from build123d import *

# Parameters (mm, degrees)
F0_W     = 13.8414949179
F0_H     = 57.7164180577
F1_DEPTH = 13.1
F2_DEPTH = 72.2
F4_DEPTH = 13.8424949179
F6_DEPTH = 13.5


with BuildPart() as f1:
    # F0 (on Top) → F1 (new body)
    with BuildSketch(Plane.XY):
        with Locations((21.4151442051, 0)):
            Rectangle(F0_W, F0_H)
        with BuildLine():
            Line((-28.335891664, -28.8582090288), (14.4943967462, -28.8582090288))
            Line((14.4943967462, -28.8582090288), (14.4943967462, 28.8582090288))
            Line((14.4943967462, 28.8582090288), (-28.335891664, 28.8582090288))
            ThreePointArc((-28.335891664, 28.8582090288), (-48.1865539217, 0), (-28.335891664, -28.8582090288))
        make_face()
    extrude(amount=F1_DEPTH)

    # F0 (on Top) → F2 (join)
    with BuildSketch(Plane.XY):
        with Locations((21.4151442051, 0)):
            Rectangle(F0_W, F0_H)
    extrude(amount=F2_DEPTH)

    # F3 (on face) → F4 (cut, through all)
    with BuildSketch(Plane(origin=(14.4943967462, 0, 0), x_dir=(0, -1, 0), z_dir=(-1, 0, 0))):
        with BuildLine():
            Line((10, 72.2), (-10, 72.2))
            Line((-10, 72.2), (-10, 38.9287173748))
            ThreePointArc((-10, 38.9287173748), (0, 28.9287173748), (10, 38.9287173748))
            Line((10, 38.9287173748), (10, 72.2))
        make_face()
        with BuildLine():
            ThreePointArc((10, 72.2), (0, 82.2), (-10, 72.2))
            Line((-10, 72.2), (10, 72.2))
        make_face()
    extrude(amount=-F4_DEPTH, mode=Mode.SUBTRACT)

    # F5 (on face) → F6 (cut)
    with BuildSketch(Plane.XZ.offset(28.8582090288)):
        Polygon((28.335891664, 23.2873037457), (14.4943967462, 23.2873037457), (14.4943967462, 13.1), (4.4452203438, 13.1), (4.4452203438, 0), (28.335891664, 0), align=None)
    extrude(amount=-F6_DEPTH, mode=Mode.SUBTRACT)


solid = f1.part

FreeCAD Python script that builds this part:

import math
import FreeCAD as App
import Part
import Sketcher
from FreeCAD import Vector
Q = App.Units.Quantity

doc = App.newDocument("Part")
params = doc.addObject("Spreadsheet::Sheet", "Params")
for row, (alias, value) in enumerate([
    ("pad1_length", "13.1 mm"),
    ("pad2_length", "72.2 mm"),
    ("sketch3_radius", "10 mm"),
    ("sketch4_height", "13.1 mm"),
    ("pocket2_length", "13.5 mm"),
], start=1):
    params.set(f"A{row}", alias)
    params.set(f"B{row}", "=" + value)
    params.setAlias(f"B{row}", alias)

body = doc.addObject("PartDesign::Body", "Body")

sketch1 = body.newObject("Sketcher::SketchObject", "Sketch")
sketch1.AttachmentSupport = (doc.getObject("XY_Plane"), [""])
sketch1.MapMode = "FlatFace"
sketch1.addGeometry(Part.LineSegment(Vector(28, -29, 0), Vector(28, 29, 0)), False)
sketch1.addGeometry(Part.LineSegment(Vector(28, 29, 0), Vector(-28, 29, 0)), False)
sketch1.addGeometry(Part.ArcOfCircle(Part.Circle(Vector(-17, 0, 0), Vector(0, 0, 1), 31), math.radians(111), math.radians(249)), False)
sketch1.addGeometry(Part.LineSegment(Vector(-28, -29, 0), Vector(28, -29, 0)), False)
sketch1.addConstraint(Sketcher.Constraint("Coincident", 0, 2, 1, 1))
sketch1.addConstraint(Sketcher.Constraint("Coincident", 1, 2, 2, 1))
sketch1.addConstraint(Sketcher.Constraint("Coincident", 2, 2, 3, 1))
sketch1.addConstraint(Sketcher.Constraint("Coincident", 3, 2, 0, 1))
sketch1.addConstraint(Sketcher.Constraint("Vertical", 0))
sketch1.addConstraint(Sketcher.Constraint("Horizontal", 1))
sketch1.addConstraint(Sketcher.Constraint("Horizontal", 3))
sketch1.addConstraint(Sketcher.Constraint("Symmetric", 0, 2, 2, 2, -1, 1))
sketch1.addConstraint(Sketcher.Constraint("PointOnObject", 2, 3, -1))
sketch1.addConstraint(Sketcher.Constraint("Radius", 2, Q("30.901866 mm")))
sketch1.addConstraint(Sketcher.Constraint("DistanceY", 0, 1, 0, 2, Q("57.716418 mm")))
sketch1.addConstraint(Sketcher.Constraint("DistanceX", 1, 2, 1, 1, Q("56.671783 mm")))
pad1 = body.newObject("PartDesign::Pad", "Pad")
pad1.Profile = sketch1
pad1.setExpression("Length", "Params.pad1_length")

sketch2 = body.newObject("Sketcher::SketchObject", "Sketch001")
sketch2.AttachmentSupport = (doc.getObject("XY_Plane"), [""])
sketch2.MapMode = "FlatFace"
sketch2.addGeometry(Part.LineSegment(Vector(14, 29, 0), Vector(14, -29, 0)), False)
sketch2.addGeometry(Part.LineSegment(Vector(14, -29, 0), Vector(28, -29, 0)), False)
sketch2.addGeometry(Part.LineSegment(Vector(28, -29, 0), Vector(28, 29, 0)), False)
sketch2.addGeometry(Part.LineSegment(Vector(28, 29, 0), Vector(14, 29, 0)), False)
sketch2.addConstraint(Sketcher.Constraint("Coincident", 0, 2, 1, 1))
sketch2.addConstraint(Sketcher.Constraint("Coincident", 1, 2, 2, 1))
sketch2.addConstraint(Sketcher.Constraint("Coincident", 2, 2, 3, 1))
sketch2.addConstraint(Sketcher.Constraint("Coincident", 3, 2, 0, 1))
sketch2.addConstraint(Sketcher.Constraint("Vertical", 0))
sketch2.addConstraint(Sketcher.Constraint("Horizontal", 1))
sketch2.addConstraint(Sketcher.Constraint("Vertical", 2))
sketch2.addConstraint(Sketcher.Constraint("Horizontal", 3))
sketch2.addConstraint(Sketcher.Constraint("DistanceY", 0, 2, 0, 1, Q("57.716418 mm")))
sketch2.addConstraint(Sketcher.Constraint("DistanceX", 1, 1, 1, 2, Q("13.841495 mm")))
sketch2.addConstraint(Sketcher.Constraint("DistanceY", 0, 2, -1, 1, Q("28.858209 mm")))
sketch2.addConstraint(Sketcher.Constraint("DistanceX", -1, 1, 1, 2, Q("28.335892 mm")))
pad2 = body.newObject("PartDesign::Pad", "Pad001")
pad2.Profile = sketch2
pad2.setExpression("Length", "Params.pad2_length")

sketch3 = body.newObject("Sketcher::SketchObject", "Sketch002")
sketch3.AttachmentSupport = (doc.getObject("YZ_Plane"), [""])
sketch3.MapMode = "FlatFace"
sketch3.AttachmentOffset = App.Placement(Vector(0, 0, 14.494397), App.Rotation())
sketch3.addGeometry(Part.LineSegment(Vector(10, 72, 0), Vector(10, 39, 0)), False)
sketch3.addGeometry(Part.ArcOfCircle(Part.Circle(Vector(0, 39, 0), Vector(0, 0, 1), 10), math.radians(180), math.radians(360)), False)
sketch3.addGeometry(Part.LineSegment(Vector(-10, 39, 0), Vector(-10, 72, 0)), False)
sketch3.addGeometry(Part.ArcOfCircle(Part.Circle(Vector(0, 72, 0), Vector(0, 0, 1), 10), math.radians(0), math.radians(180)), False)
sketch3.addConstraint(Sketcher.Constraint("Tangent", 0, 2, 1, 2))
sketch3.addConstraint(Sketcher.Constraint("Tangent", 1, 1, 2, 1))
sketch3.addConstraint(Sketcher.Constraint("Tangent", 2, 2, 3, 2))
sketch3.addConstraint(Sketcher.Constraint("Tangent", 3, 1, 0, 1))
sketch3.addConstraint(Sketcher.Constraint("Vertical", 0))
sketch3.addConstraint(Sketcher.Constraint("Vertical", 2))
sketch3.addConstraint(Sketcher.Constraint("PointOnObject", 1, 3, -2))
sketch3.addConstraint(Sketcher.Constraint("Radius", 1, Q("10 mm")))
sketch3.addConstraint(Sketcher.Constraint("DistanceY", -1, 1, 3, 3, Q("72.2 mm")))
sketch3.addConstraint(Sketcher.Constraint("DistanceY", 0, 2, 0, 1, Q("33.271283 mm")))
sketch3.setExpression("Constraints[7]", "Params.sketch3_radius")
pocket1 = body.newObject("PartDesign::Pocket", "Pocket")
pocket1.Profile = sketch3
pocket1.Type = "ThroughAll"
pocket1.Reversed = True

sketch4 = body.newObject("Sketcher::SketchObject", "Sketch003")
sketch4.AttachmentSupport = (doc.getObject("XZ_Plane"), [""])
sketch4.MapMode = "FlatFace"
sketch4.AttachmentOffset = App.Placement(Vector(0, 0, 28.858209), App.Rotation())
sketch4.addGeometry(Part.LineSegment(Vector(28, 23, 0), Vector(14, 23, 0)), False)
sketch4.addGeometry(Part.LineSegment(Vector(14, 23, 0), Vector(14, 13, 0)), False)
sketch4.addGeometry(Part.LineSegment(Vector(14, 13, 0), Vector(4, 13, 0)), False)
sketch4.addGeometry(Part.LineSegment(Vector(4, 13, 0), Vector(4, 0, 0)), False)
sketch4.addGeometry(Part.LineSegment(Vector(4, 0, 0), Vector(28, 0, 0)), False)
sketch4.addGeometry(Part.LineSegment(Vector(28, 0, 0), Vector(28, 23, 0)), False)
sketch4.addConstraint(Sketcher.Constraint("Coincident", 0, 2, 1, 1))
sketch4.addConstraint(Sketcher.Constraint("Coincident", 1, 2, 2, 1))
sketch4.addConstraint(Sketcher.Constraint("Coincident", 2, 2, 3, 1))
sketch4.addConstraint(Sketcher.Constraint("Coincident", 3, 2, 4, 1))
sketch4.addConstraint(Sketcher.Constraint("Coincident", 4, 2, 5, 1))
sketch4.addConstraint(Sketcher.Constraint("Coincident", 5, 2, 0, 1))
sketch4.addConstraint(Sketcher.Constraint("Horizontal", 0))
sketch4.addConstraint(Sketcher.Constraint("Vertical", 1))
sketch4.addConstraint(Sketcher.Constraint("Horizontal", 2))
sketch4.addConstraint(Sketcher.Constraint("Vertical", 3))
sketch4.addConstraint(Sketcher.Constraint("Horizontal", 4))
sketch4.addConstraint(Sketcher.Constraint("Vertical", 5))
sketch4.addConstraint(Sketcher.Constraint("PointOnObject", 3, 2, -1))
sketch4.addConstraint(Sketcher.Constraint("DistanceY", 3, 2, 3, 1, Q("13.1 mm")))
sketch4.addConstraint(Sketcher.Constraint("DistanceX", 4, 1, 4, 2, Q("23.890671 mm")))
sketch4.addConstraint(Sketcher.Constraint("DistanceX", 0, 2, 0, 1, Q("13.841495 mm")))
sketch4.addConstraint(Sketcher.Constraint("DistanceY", 1, 2, 1, 1, Q("10.187304 mm")))
sketch4.addConstraint(Sketcher.Constraint("DistanceX", -1, 1, 2, 2, Q("4.44522 mm")))
sketch4.setExpression("Constraints[13]", "Params.sketch4_height")
pocket2 = body.newObject("PartDesign::Pocket", "Pocket001")
pocket2.Profile = sketch4
pocket2.setExpression("Length", "Params.pocket2_length")

doc.recompute()
